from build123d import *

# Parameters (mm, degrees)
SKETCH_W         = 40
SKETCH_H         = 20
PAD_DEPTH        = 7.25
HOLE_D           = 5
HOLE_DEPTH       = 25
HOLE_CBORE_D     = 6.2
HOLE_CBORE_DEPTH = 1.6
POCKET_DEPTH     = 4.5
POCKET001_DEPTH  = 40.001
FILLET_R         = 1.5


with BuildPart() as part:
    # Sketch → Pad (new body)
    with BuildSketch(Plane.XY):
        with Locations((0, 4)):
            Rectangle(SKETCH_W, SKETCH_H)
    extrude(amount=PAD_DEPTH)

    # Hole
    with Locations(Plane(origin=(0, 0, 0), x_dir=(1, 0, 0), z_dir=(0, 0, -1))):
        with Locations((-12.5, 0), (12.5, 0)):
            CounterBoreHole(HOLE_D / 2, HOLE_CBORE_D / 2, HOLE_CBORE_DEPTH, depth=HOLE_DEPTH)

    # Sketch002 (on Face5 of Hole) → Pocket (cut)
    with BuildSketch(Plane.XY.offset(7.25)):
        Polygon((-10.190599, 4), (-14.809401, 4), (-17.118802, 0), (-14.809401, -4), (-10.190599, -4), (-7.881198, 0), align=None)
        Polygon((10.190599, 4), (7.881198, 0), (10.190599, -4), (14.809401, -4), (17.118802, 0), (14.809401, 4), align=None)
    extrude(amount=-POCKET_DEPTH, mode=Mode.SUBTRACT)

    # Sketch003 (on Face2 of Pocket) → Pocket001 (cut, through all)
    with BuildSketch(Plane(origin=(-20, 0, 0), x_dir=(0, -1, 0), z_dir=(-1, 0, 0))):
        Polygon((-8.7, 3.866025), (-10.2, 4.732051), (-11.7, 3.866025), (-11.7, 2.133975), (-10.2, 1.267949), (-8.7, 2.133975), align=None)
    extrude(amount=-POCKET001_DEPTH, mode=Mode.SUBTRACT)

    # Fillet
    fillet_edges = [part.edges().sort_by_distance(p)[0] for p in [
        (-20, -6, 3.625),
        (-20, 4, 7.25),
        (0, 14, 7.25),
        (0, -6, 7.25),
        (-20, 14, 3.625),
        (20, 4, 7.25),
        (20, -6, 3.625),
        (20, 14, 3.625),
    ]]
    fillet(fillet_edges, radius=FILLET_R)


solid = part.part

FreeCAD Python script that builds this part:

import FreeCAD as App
import Part
import Sketcher
from FreeCAD import Vector
Q = App.Units.Quantity


def edges_at(feature, points):
    """Names of the edges that pass closest to the given points."""
    edges = feature.Shape.Edges
    near = lambda p: min(range(len(edges)), key=lambda i: edges[i].distToShape(Part.Vertex(*p))[0])
    return sorted({f"Edge{near(p) + 1}" for p in points})

doc = App.newDocument("Part")
body = doc.addObject("PartDesign::Body", "Body")

# Sketch on XY plane
sketch1 = doc.addObject("Sketcher::SketchObject", "Sketch")
body.addObject(sketch1)
sketch1.AttachmentSupport = (doc.XY_Plane, [""])
sketch1.MapMode = "FlatFace"
sketch1.addGeometry([
    Part.LineSegment(Vector(-20, 14, 0), Vector(-20, -6, 0)),
    Part.LineSegment(Vector(-20, -6, 0), Vector(20, -6, 0)),
    Part.LineSegment(Vector(20, -6, 0), Vector(20, 14, 0)),
    Part.LineSegment(Vector(20, 14, 0), Vector(-20, 14, 0)),
], False)
sketch1.addConstraint([
    Sketcher.Constraint("Coincident", 0, 2, 1, 1),
    Sketcher.Constraint("Coincident", 1, 2, 2, 1),
    Sketcher.Constraint("Coincident", 2, 2, 3, 1),
    Sketcher.Constraint("Coincident", 3, 2, 0, 1),
    Sketcher.Constraint("Vertical", 0),
    Sketcher.Constraint("Horizontal", 1),
    Sketcher.Constraint("Vertical", 2),
    Sketcher.Constraint("Horizontal", 3),
    Sketcher.Constraint("DistanceX", 1, 1, 1, 2, 40.0),
    Sketcher.Constraint("DistanceY", 0, 2, 0, 1, 20.0),
    Sketcher.Constraint("DistanceX", 0, 2, -1, 1, 20.0),
    Sketcher.Constraint("DistanceY", 0, 2, -1, 1, 6.0),
])
pad1 = doc.addObject("PartDesign::Pad", "Pad")
body.addObject(pad1)
pad1.Profile = sketch1
pad1.Length = 7.25

# Sketch on XY plane
sketch2 = doc.addObject("Sketcher::SketchObject", "Sketch001")
body.addObject(sketch2)
sketch2.AttachmentSupport = (doc.XY_Plane, [""])
sketch2.MapMode = "FlatFace"
sketch2.addGeometry([
    Part.Circle(Vector(-12.5, 0, 0), Vector(0, 0, 1), 2.5),
    Part.Circle(Vector(12.5, 0, 0), Vector(0, 0, 1), 2.5),
], False)
sketch2.addConstraint([
    Sketcher.Constraint("Equal", 0, 1),
    Sketcher.Constraint("Symmetric", 0, 3, 1, 3, -1, 1),
    Sketcher.Constraint("PointOnObject", 0, 3, -1),
    Sketcher.Constraint("Diameter", 0, 5.0),
    Sketcher.Constraint("DistanceX", 0, 3, 1, 3, 25.0),
])
doc.recompute()
hole = doc.addObject("PartDesign::Hole", "Hole")
body.addObject(hole)
hole.Profile = sketch2
hole.ThreadType = "None"
hole.Diameter = 5
hole.DepthType = "Dimension"
hole.Depth = 25
hole.DrillPoint = "Flat"
hole.HoleCutType = "Counterbore"
hole.HoleCutDiameter = 6.2
hole.HoleCutDepth = 1.6
hole.Reversed = True

# Sketch on XY plane
sketch3 = doc.addObject("Sketcher::SketchObject", "Sketch002")
body.addObject(sketch3)
sketch3.AttachmentSupport = (doc.XY_Plane, [""])
sketch3.MapMode = "FlatFace"
sketch3.AttachmentOffset = App.Placement(Vector(0, 0, 7.25), App.Rotation())
sketch3.addGeometry([
    Part.LineSegment(Vector(-10.2, 4, 0), Vector(-14.8, 4, 0)),  # 0
    Part.LineSegment(Vector(-14.8, 4, 0), Vector(-17.1, 0, 0)),  # 1
    Part.LineSegment(Vector(-17.1, 0, 0), Vector(-14.8, -4, 0)),  # 2
    Part.LineSegment(Vector(-14.8, -4, 0), Vector(-10.2, -4, 0)),  # 3
    Part.LineSegment(Vector(-10.2, -4, 0), Vector(-7.9, 0, 0)),  # 4
    Part.LineSegment(Vector(-7.9, 0, 0), Vector(-10.2, 4, 0)),  # 5
    Part.LineSegment(Vector(10.2, 4, 0), Vector(7.9, 0, 0)),  # 6
    Part.LineSegment(Vector(7.9, 0, 0), Vector(10.2, -4, 0)),  # 7
    Part.LineSegment(Vector(10.2, -4, 0), Vector(14.8, -4, 0)),  # 8
    Part.LineSegment(Vector(14.8, -4, 0), Vector(17.1, 0, 0)),  # 9
    Part.LineSegment(Vector(17.1, 0, 0), Vector(14.8, 4, 0)),  # 10
    Part.LineSegment(Vector(14.8, 4, 0), Vector(10.2, 4, 0)),  # 11
], False)
sketch3.addConstraint([
    Sketcher.Constraint("Coincident", 0, 2, 1, 1),
    Sketcher.Constraint("Coincident", 1, 2, 2, 1),
    Sketcher.Constraint("Coincident", 2, 2, 3, 1),
    Sketcher.Constraint("Coincident", 3, 2, 4, 1),
    Sketcher.Constraint("Coincident", 4, 2, 5, 1),
    Sketcher.Constraint("Coincident", 5, 2, 0, 1),
    Sketcher.Constraint("Coincident", 6, 2, 7, 1),
    Sketcher.Constraint("Coincident", 7, 2, 8, 1),
    Sketcher.Constraint("Coincident", 8, 2, 9, 1),
    Sketcher.Constraint("Coincident", 9, 2, 10, 1),
    Sketcher.Constraint("Coincident", 10, 2, 11, 1),
    Sketcher.Constraint("Coincident", 11, 2, 6, 1),
    Sketcher.Constraint("Horizontal", 0),
    Sketcher.Constraint("Horizontal", 3),
    Sketcher.Constraint("Horizontal", 8),
    Sketcher.Constraint("Horizontal", 11),
    Sketcher.Constraint("Symmetric", 4, 2, 6, 2, -1, 1),
    Sketcher.Constraint("Symmetric", 5, 2, 7, 2, -1, 1),
    Sketcher.Constraint("Symmetric", 1, 2, 9, 2, -1, 1),
    Sketcher.Constraint("Symmetric", 2, 2, 10, 2, -1, 1),
    Sketcher.Constraint("Symmetric", 3, 2, 7, 2, -2),
    Sketcher.Constraint("PointOnObject", 1, 2, -1),
    Sketcher.Constraint("PointOnObject", 4, 2, -1),
    Sketcher.Constraint("Parallel", 1, 4),
    Sketcher.Constraint("Parallel", 2, 5),
    Sketcher.Constraint("Parallel", 4, 6),
    Sketcher.Constraint("Parallel", 6, 9),
    Sketcher.Constraint("Angle", 1, Q("-119.999999 deg")),
    Sketcher.Constraint("DistanceY", -1, 1, 0, 2, 4.0),
    Sketcher.Constraint("DistanceX", 2, 2, 7, 2, 25.0),
    Sketcher.Constraint("DistanceX", 0, 2, 0, 1, 4.618802),
])
pocket1 = doc.addObject("PartDesign::Pocket", "Pocket")
body.addObject(pocket1)
pocket1.Profile = sketch3
pocket1.Length = 4.5

# Sketch on YZ plane
sketch4 = doc.addObject("Sketcher::SketchObject", "Sketch003")
body.addObject(sketch4)
sketch4.AttachmentSupport = (doc.YZ_Plane, [""])
sketch4.MapMode = "FlatFace"
sketch4.AttachmentOffset = App.Placement(Vector(0, 0, -20), App.Rotation())
sketch4.addGeometry([
    Part.LineSegment(Vector(8.7, 3.9, 0), Vector(10.2, 4.7, 0)),  # 0
    Part.LineSegment(Vector(10.2, 4.7, 0), Vector(11.7, 3.9, 0)),  # 1
    Part.LineSegment(Vector(11.7, 3.9, 0), Vector(11.7, 2.1, 0)),  # 2
    Part.LineSegment(Vector(11.7, 2.1, 0), Vector(10.2, 1.3, 0)),  # 3
    Part.LineSegment(Vector(10.2, 1.3, 0), Vector(8.7, 2.1, 0)),  # 4
    Part.LineSegment(Vector(8.7, 2.1, 0), Vector(8.7, 3.9, 0)),  # 5
], False)
sketch4.addConstraint([
    Sketcher.Constraint("Coincident", 0, 2, 1, 1),
    Sketcher.Constraint("Coincident", 1, 2, 2, 1),
    Sketcher.Constraint("Coincident", 2, 2, 3, 1),
    Sketcher.Constraint("Coincident", 3, 2, 4, 1),
    Sketcher.Constraint("Coincident", 4, 2, 5, 1),
    Sketcher.Constraint("Coincident", 5, 2, 0, 1),
    Sketcher.Constraint("Vertical", 2),
    Sketcher.Constraint("Vertical", 5),
    Sketcher.Constraint("Parallel", 0, 3),
    Sketcher.Constraint("Parallel", 1, 4),
    Sketcher.Constraint("Horizontal", 2, 2, 4, 2),
    Sketcher.Constraint("Horizontal", 1, 2, 5, 2),
    Sketcher.Constraint("Vertical", 0, 2, 3, 2),
    Sketcher.Constraint("Angle", 0, Q("30.000017 deg")),
    Sketcher.Constraint("DistanceX", 4, 2, 2, 2, 3.0),
    Sketcher.Constraint("DistanceX", -1, 1, 0, 2, 10.2),
    Sketcher.Constraint("DistanceY", 2, 2, 2, 1, 1.73205),
    Sketcher.Constraint("DistanceY", -1, 1, 0, 2, 4.732051),
])
pocket2 = doc.addObject("PartDesign::Pocket", "Pocket001")
body.addObject(pocket2)
pocket2.Profile = sketch4
pocket2.Type = "ThroughAll"
pocket2.Reversed = True
doc.recompute()

fillet = doc.addObject("PartDesign::Fillet", "Fillet")
body.addObject(fillet)
fillet.Base = (pocket2, edges_at(pocket2, [
    (-20, -6, 3.625),
    (-20, 4, 7.25),
    (0, 14, 7.25),
    (0, -6, 7.25),
    (-20, 14, 3.625),
    (20, 4, 7.25),
    (20, -6, 3.625),
    (20, 14, 3.625),
]))
fillet.Radius = 1.5

doc.recompute()
